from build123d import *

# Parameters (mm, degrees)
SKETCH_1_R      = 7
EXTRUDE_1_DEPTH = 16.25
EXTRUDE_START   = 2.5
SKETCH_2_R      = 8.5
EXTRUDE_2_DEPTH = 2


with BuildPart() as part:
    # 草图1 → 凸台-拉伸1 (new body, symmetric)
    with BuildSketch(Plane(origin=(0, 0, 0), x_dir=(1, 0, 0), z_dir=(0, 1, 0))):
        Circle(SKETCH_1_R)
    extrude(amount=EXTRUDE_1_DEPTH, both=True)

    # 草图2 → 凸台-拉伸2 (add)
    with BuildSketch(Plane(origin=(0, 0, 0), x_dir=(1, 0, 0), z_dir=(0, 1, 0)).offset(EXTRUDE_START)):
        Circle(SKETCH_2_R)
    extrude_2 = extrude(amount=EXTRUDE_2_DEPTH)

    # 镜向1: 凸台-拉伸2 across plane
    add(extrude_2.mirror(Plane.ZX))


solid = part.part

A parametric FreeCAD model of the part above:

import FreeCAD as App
import Part
import Sketcher
from FreeCAD import Vector
Q = App.Units.Quantity

doc = App.newDocument("Part")
body = doc.addObject("PartDesign::Body", "Body")

sketch1 = body.newObject("Sketcher::SketchObject", "Sketch")
sketch1.AttachmentSupport = (doc.getObject("XZ_Plane"), [""])
sketch1.MapMode = "FlatFace"
sketch1.addGeometry(Part.Circle(Vector(0, 0, 0), Vector(0, 0, 1), 7), False)
sketch1.addConstraint([
    Sketcher.Constraint("Coincident", 0, 3, -1, 1),
    Sketcher.Constraint("Diameter", 0, Q("14 mm")),
])
pad1 = body.newObject("PartDesign::Pad", "Pad")
pad1.Profile = sketch1
pad1.Length = 32.5
pad1.Midplane = True

sketch2 = body.newObject("Sketcher::SketchObject", "Sketch001")
sketch2.AttachmentSupport = (doc.getObject("XZ_Plane"), [""])
sketch2.MapMode = "FlatFace"
sketch2.AttachmentOffset = App.Placement(Vector(0, 0, -2.5), App.Rotation())
sketch2.addGeometry(Part.Circle(Vector(0, 0, 0), Vector(0, 0, 1), 8), False)
sketch2.addConstraint([
    Sketcher.Constraint("Coincident", 0, 3, -1, 1),
    Sketcher.Constraint("Diameter", 0, Q("17 mm")),
])
pad2 = body.newObject("PartDesign::Pad", "Pad001")
pad2.Profile = sketch2
pad2.Length = 2
pad2.Reversed = True
doc.recompute()

mirrored = body.newObject("PartDesign::Mirrored", "Mirrored")
mirrored.Originals = [pad2]
mirrored.MirrorPlane = (doc.getObject("XZ_Plane"), [""])
body.Tip = mirrored

doc.recompute()
